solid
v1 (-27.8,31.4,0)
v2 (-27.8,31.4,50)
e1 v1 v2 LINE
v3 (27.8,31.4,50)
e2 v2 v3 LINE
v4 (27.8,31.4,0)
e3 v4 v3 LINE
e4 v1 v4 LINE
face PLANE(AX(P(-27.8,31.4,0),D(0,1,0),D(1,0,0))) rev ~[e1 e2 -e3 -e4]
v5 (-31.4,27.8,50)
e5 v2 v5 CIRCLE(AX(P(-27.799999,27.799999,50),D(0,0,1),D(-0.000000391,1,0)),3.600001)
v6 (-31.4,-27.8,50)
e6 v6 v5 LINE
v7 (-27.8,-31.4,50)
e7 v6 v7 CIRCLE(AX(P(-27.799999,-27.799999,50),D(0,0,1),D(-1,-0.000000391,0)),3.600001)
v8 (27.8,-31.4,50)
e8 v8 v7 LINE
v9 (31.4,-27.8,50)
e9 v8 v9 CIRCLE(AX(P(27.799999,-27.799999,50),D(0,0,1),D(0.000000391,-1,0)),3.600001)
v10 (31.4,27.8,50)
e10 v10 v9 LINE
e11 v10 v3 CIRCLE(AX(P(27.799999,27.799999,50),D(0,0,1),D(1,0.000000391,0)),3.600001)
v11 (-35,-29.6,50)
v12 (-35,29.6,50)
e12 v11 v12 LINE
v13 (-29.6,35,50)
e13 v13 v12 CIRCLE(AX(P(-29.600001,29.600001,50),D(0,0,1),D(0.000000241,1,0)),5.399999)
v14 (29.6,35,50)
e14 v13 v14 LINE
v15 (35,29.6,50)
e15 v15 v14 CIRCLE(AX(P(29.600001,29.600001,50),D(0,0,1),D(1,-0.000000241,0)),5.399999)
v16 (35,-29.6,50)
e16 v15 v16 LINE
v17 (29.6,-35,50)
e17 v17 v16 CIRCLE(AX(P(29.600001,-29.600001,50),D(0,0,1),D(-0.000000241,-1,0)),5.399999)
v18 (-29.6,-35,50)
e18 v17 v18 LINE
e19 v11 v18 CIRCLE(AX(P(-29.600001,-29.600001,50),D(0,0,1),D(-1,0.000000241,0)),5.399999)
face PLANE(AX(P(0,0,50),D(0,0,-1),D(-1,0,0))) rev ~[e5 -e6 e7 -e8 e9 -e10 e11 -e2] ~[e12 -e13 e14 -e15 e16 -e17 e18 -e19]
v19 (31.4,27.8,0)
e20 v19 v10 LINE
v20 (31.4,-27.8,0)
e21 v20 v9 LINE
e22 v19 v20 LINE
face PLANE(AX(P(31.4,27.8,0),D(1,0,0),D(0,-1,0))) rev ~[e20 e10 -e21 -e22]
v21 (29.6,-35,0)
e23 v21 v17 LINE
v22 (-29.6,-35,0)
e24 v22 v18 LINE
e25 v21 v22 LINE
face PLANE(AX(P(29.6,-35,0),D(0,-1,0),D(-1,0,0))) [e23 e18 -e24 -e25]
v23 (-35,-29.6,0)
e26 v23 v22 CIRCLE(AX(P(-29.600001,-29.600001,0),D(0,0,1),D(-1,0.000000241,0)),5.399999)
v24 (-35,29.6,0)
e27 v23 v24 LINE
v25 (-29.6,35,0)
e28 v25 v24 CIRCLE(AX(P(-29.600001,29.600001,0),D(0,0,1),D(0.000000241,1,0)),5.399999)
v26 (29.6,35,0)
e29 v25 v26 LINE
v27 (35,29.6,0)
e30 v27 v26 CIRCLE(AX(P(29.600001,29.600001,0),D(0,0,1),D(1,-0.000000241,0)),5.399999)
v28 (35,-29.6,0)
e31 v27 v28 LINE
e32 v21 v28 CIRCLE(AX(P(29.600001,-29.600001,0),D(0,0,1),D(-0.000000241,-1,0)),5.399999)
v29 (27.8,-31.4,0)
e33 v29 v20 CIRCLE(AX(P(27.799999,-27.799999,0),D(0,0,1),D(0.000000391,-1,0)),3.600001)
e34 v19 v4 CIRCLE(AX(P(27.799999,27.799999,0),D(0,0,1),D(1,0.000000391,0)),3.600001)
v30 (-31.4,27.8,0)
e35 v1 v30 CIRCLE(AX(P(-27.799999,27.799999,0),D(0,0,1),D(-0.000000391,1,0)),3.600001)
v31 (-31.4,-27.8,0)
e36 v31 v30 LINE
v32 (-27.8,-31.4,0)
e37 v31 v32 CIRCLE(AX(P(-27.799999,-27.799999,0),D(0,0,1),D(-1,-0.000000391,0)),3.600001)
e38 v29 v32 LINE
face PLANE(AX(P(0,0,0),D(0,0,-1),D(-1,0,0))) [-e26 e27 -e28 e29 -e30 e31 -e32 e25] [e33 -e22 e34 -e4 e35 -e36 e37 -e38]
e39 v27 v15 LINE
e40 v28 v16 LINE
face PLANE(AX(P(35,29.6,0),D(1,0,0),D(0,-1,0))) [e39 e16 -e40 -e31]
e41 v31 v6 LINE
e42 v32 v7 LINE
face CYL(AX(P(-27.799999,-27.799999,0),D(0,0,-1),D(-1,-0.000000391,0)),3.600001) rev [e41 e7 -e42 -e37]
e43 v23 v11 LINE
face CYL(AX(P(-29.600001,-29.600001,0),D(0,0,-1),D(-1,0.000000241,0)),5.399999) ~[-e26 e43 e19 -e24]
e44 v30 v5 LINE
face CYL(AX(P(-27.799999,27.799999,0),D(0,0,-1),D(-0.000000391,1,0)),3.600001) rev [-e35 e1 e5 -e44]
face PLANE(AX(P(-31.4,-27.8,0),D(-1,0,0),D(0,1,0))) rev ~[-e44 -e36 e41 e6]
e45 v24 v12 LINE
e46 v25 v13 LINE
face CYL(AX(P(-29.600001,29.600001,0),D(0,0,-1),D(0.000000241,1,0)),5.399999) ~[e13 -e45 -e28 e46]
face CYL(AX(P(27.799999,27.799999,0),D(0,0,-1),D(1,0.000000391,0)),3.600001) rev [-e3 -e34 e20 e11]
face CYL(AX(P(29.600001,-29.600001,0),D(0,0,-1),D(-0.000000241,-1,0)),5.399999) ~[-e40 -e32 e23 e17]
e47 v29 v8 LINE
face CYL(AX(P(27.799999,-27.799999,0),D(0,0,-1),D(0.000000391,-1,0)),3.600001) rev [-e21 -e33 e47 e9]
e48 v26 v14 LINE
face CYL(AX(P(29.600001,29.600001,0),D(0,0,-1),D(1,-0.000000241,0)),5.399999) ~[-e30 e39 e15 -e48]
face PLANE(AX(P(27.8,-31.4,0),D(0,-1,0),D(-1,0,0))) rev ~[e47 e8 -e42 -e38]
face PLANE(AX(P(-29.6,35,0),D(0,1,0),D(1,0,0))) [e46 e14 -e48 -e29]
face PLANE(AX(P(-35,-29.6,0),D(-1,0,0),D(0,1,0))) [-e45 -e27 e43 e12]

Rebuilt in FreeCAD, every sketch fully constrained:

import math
import FreeCAD as App
import Part
import Sketcher
Q = App.Units.Quantity

doc = App.newDocument("Part")
params = doc.addObject("Spreadsheet::Sheet", "Params")
for row, (alias, value) in enumerate([
    ("sketch1_radius", "5.399999 mm"),
    ("sketch1_radius2", "3.600001 mm"),
    ("sketch1_width", "59.2 mm"),
    ("sketch1_width2", "55.6 mm"),
    ("pad1_length", "50 mm"),
], start=1):
    params.set(f"A{row}", alias)
    params.set(f"B{row}", "=" + value)
    params.setAlias(f"B{row}", alias)

body = doc.addObject("PartDesign::Body", "Body")

# Sketch on XY plane
sketch1 = body.newObject("Sketcher::SketchObject", "Sketch")
sketch1.AttachmentSupport = (doc.getObject("XY_Plane"), [""])
sketch1.MapMode = "FlatFace"
sketch1.addGeometry([
    Part.LineSegment(App.Vector(29.6, 35, 0), App.Vector(-29.6, 35, 0)),  # 0
    Part.ArcOfCircle(Part.Circle(App.Vector(-29.6, 29.6, 0), App.Vector(0, 0, 1), 5.4), math.radians(90), math.radians(180)),  # 1
    Part.LineSegment(App.Vector(-35, 29.6, 0), App.Vector(-35, -29.6, 0)),  # 2
    Part.ArcOfCircle(Part.Circle(App.Vector(-29.6, -29.6, 0), App.Vector(0, 0, 1), 5.4), math.radians(180), math.radians(270)),  # 3
    Part.LineSegment(App.Vector(-29.6, -35, 0), App.Vector(29.6, -35, 0)),  # 4
    Part.ArcOfCircle(Part.Circle(App.Vector(29.6, -29.6, 0), App.Vector(0, 0, 1), 5.4), math.radians(-90), math.radians(0)),  # 5
    Part.LineSegment(App.Vector(35, -29.6, 0), App.Vector(35, 29.6, 0)),  # 6
    Part.ArcOfCircle(Part.Circle(App.Vector(29.6, 29.6, 0), App.Vector(0, 0, 1), 5.4), math.radians(0), math.radians(90)),  # 7
    Part.LineSegment(App.Vector(-27.8, 31.4, 0), App.Vector(27.8, 31.4, 0)),  # 8
    Part.ArcOfCircle(Part.Circle(App.Vector(27.8, 27.8, 0), App.Vector(0, 0, 1), 3.6), math.radians(0), math.radians(90)),  # 9
    Part.LineSegment(App.Vector(31.4, 27.8, 0), App.Vector(31.4, -27.8, 0)),  # 10
    Part.ArcOfCircle(Part.Circle(App.Vector(27.8, -27.8, 0), App.Vector(0, 0, 1), 3.6), math.radians(-90), math.radians(0)),  # 11
    Part.LineSegment(App.Vector(27.8, -31.4, 0), App.Vector(-27.8, -31.4, 0)),  # 12
    Part.ArcOfCircle(Part.Circle(App.Vector(-27.8, -27.8, 0), App.Vector(0, 0, 1), 3.6), math.radians(-180), math.radians(-90)),  # 13
    Part.LineSegment(App.Vector(-31.4, -27.8, 0), App.Vector(-31.4, 27.8, 0)),  # 14
    Part.ArcOfCircle(Part.Circle(App.Vector(-27.8, 27.8, 0), App.Vector(0, 0, 1), 3.6), math.radians(90), math.radians(180)),  # 15
], False)
sketch1.addConstraint([
    Sketcher.Constraint("Tangent", 0, 2, 1, 1),
    Sketcher.Constraint("Tangent", 1, 2, 2, 1),
    Sketcher.Constraint("Tangent", 2, 2, 3, 1),
    Sketcher.Constraint("Tangent", 3, 2, 4, 1),
    Sketcher.Constraint("Tangent", 4, 2, 5, 1),
    Sketcher.Constraint("Tangent", 5, 2, 6, 1),
    Sketcher.Constraint("Tangent", 6, 2, 7, 1),
    Sketcher.Constraint("Tangent", 7, 2, 0, 1),
    Sketcher.Constraint("Tangent", 8, 2, 9, 2),
    Sketcher.Constraint("Tangent", 9, 1, 10, 1),
    Sketcher.Constraint("Tangent", 10, 2, 11, 2),
    Sketcher.Constraint("Tangent", 11, 1, 12, 1),
    Sketcher.Constraint("Tangent", 12, 2, 13, 2),
    Sketcher.Constraint("Tangent", 13, 1, 14, 1),
    Sketcher.Constraint("Tangent", 14, 2, 15, 2),
    Sketcher.Constraint("Tangent", 15, 1, 8, 1),
    Sketcher.Constraint("Horizontal", 0),
    Sketcher.Constraint("Vertical", 2),
    Sketcher.Constraint("Horizontal", 4),
    Sketcher.Constraint("Vertical", 6),
    Sketcher.Constraint("Horizontal", 8),
    Sketcher.Constraint("Vertical", 10),
    Sketcher.Constraint("Horizontal", 12),
    Sketcher.Constraint("Vertical", 14),
    Sketcher.Constraint("Equal", 1, 3),
    Sketcher.Constraint("Equal", 3, 5),
    Sketcher.Constraint("Equal", 5, 7),
    Sketcher.Constraint("Equal", 9, 11),
    Sketcher.Constraint("Equal", 11, 13),
    Sketcher.Constraint("Equal", 13, 15),
    Sketcher.Constraint("Symmetric", 1, 3, 5, 3, -1, 1),
    Sketcher.Constraint("Symmetric", 9, 3, 13, 3, -1, 1),
    Sketcher.Constraint("Equal", 4, 2),
    Sketcher.Constraint("Equal", 12, 10),
    Sketcher.Constraint("Radius", 1, Q("5.399999 mm")),
    Sketcher.Constraint("Radius", 9, Q("3.600001 mm")),
    Sketcher.Constraint("DistanceX", 0, 2, 0, 1, Q("59.2 mm")),
    Sketcher.Constraint("DistanceX", 8, 1, 8, 2, Q("55.6 mm")),
])
sketch1.setExpression("Constraints[34]", "Params.sketch1_radius")
sketch1.setExpression("Constraints[35]", "Params.sketch1_radius2")
sketch1.setExpression("Constraints[36]", "Params.sketch1_width")
sketch1.setExpression("Constraints[37]", "Params.sketch1_width2")
pad1 = body.newObject("PartDesign::Pad", "Pad")
pad1.Profile = sketch1
pad1.setExpression("Length", "Params.pad1_length")

doc.recompute()
